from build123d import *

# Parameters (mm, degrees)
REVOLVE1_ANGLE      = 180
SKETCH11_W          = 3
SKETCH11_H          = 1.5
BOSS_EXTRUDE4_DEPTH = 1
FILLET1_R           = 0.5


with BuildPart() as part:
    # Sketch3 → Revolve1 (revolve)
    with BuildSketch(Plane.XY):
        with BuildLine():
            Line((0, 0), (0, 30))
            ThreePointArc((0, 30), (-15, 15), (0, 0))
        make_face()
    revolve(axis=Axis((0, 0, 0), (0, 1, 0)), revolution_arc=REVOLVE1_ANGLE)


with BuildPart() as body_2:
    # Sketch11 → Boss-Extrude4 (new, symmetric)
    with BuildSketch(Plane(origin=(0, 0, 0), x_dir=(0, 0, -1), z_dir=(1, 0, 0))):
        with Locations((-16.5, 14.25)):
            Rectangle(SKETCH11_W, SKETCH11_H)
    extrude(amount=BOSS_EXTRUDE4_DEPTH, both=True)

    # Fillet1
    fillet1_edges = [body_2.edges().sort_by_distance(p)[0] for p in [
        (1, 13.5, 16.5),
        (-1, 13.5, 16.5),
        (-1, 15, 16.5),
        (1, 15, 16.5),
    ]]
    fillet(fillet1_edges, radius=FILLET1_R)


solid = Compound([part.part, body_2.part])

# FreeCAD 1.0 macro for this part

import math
import FreeCAD as App
import Part
import Sketcher


def edges_at(feature, points):
    """Names of the edges that pass closest to the given points."""
    edges = feature.Shape.Edges
    near = lambda p: min(range(len(edges)), key=lambda i: edges[i].distToShape(Part.Vertex(*p))[0])
    return sorted({f"Edge{near(p) + 1}" for p in points})

doc = App.newDocument("Part")
body = doc.addObject("PartDesign::Body", "Body")

sketch1 = doc.addObject("Sketcher::SketchObject", "Sketch")
body.addObject(sketch1)
sketch1.AttachmentSupport = (doc.XY_Plane, [""])
sketch1.MapMode = "FlatFace"
sketch1.addGeometry([
    Part.LineSegment(App.Vector(0, 0, 0), App.Vector(0, 30, 0)),
    Part.ArcOfCircle(Part.Circle(App.Vector(0, 15, 0), App.Vector(0, 0, 1), 15), math.radians(90), math.radians(270)),
], False)
sketch1.addConstraint([
    Sketcher.Constraint("Coincident", 0, 1, 1, 2),
    Sketcher.Constraint("Coincident", 1, 1, 0, 2),
    Sketcher.Constraint("Vertical", 0),
    Sketcher.Constraint("Coincident", 0, 1, -1, 1),
    Sketcher.Constraint("PointOnObject", 1, 3, -2),
    Sketcher.Constraint("Radius", 1, 15.0),
])
revolution = doc.addObject("PartDesign::Revolution", "Revolution")
body.addObject(revolution)
revolution.Profile = sketch1
revolution.ReferenceAxis = (sketch1, ["V_Axis"])
revolution.Angle = 180
body2 = doc.addObject("PartDesign::Body", "Body001")

sketch2 = doc.addObject("Sketcher::SketchObject", "Sketch001")
body2.addObject(sketch2)
sketch2.AttachmentSupport = (doc.getObject("YZ_Plane001"), [""])
sketch2.MapMode = "FlatFace"
sketch2.addGeometry([
    Part.LineSegment(App.Vector(15, 18, 0), App.Vector(13.5, 18, 0)),
    Part.LineSegment(App.Vector(13.5, 18, 0), App.Vector(13.5, 15, 0)),
    Part.LineSegment(App.Vector(13.5, 15, 0), App.Vector(15, 15, 0)),
    Part.LineSegment(App.Vector(15, 15, 0), App.Vector(15, 18, 0)),
], False)
sketch2.addConstraint([
    Sketcher.Constraint("Coincident", 0, 2, 1, 1),
    Sketcher.Constraint("Coincident", 1, 2, 2, 1),
    Sketcher.Constraint("Coincident", 2, 2, 3, 1),
    Sketcher.Constraint("Coincident", 3, 2, 0, 1),
    Sketcher.Constraint("Horizontal", 0),
    Sketcher.Constraint("Vertical", 1),
    Sketcher.Constraint("Horizontal", 2),
    Sketcher.Constraint("Vertical", 3),
    Sketcher.Constraint("DistanceY", 1, 2, 1, 1, 3.0),
    Sketcher.Constraint("DistanceX", 0, 2, 0, 1, 1.5),
    Sketcher.Constraint("DistanceY", -1, 1, 0, 2, 18.0),
    Sketcher.Constraint("DistanceX", -1, 1, 2, 2, 15.0),
])
pad1 = doc.addObject("PartDesign::Pad", "Pad")
body2.addObject(pad1)
pad1.Profile = sketch2
pad1.Length = 2
pad1.Midplane = True
doc.recompute()

fillet = doc.addObject("PartDesign::Fillet", "Fillet")
body2.addObject(fillet)
fillet.Base = (pad1, edges_at(pad1, [
    (1, 13.5, 16.5),
    (-1, 13.5, 16.5),
    (-1, 15, 16.5),
    (1, 15, 16.5),
]))
fillet.Radius = 0.5

doc.recompute()
